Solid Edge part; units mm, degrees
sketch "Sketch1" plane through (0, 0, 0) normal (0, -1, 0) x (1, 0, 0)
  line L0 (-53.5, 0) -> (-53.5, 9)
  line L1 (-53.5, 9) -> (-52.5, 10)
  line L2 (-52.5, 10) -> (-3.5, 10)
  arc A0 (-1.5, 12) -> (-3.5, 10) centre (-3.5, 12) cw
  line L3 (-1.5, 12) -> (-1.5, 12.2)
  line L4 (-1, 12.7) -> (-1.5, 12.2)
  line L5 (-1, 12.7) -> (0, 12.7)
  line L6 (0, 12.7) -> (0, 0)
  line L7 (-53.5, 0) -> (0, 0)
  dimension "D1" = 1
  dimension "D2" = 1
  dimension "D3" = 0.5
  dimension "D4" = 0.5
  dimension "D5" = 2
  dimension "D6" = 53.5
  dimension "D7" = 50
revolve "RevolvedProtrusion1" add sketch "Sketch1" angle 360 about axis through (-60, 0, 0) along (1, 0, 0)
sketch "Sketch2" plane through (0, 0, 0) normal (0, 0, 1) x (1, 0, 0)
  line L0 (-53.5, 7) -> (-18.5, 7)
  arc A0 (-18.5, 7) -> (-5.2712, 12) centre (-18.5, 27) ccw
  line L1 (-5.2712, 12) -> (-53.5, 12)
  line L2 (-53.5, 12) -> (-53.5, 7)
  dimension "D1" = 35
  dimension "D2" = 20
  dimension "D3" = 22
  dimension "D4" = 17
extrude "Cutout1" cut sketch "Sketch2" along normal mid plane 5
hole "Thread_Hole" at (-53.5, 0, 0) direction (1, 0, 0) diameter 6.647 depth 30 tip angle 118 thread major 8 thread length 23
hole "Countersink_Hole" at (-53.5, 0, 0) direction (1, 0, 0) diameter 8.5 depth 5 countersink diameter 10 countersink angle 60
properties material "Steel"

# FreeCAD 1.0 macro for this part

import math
import FreeCAD as App
import Part
import Sketcher
Q = App.Units.Quantity

doc = App.newDocument("Part")
body = doc.addObject("PartDesign::Body", "Body")

sketch1 = body.newObject("Sketcher::SketchObject", "Sketch")
sketch1.AttachmentSupport = (doc.getObject("XZ_Plane"), [""])
sketch1.MapMode = "FlatFace"
sketch1.addGeometry([
    Part.LineSegment(App.Vector(-53.5, 9, 0), App.Vector(-53.5, 0, 0)),
    Part.LineSegment(App.Vector(-53.5, 0, 0), App.Vector(0, 0, 0)),
    Part.LineSegment(App.Vector(0, 0, 0), App.Vector(0, 12.7, 0)),
    Part.LineSegment(App.Vector(0, 12.7, 0), App.Vector(-1, 12.7, 0)),
    Part.LineSegment(App.Vector(-1, 12.7, 0), App.Vector(-1.5, 12.2, 0)),
    Part.LineSegment(App.Vector(-1.5, 12.2, 0), App.Vector(-1.5, 12, 0)),
    Part.ArcOfCircle(Part.Circle(App.Vector(-3.5, 12, 0), App.Vector(0, 0, 1), 2), math.radians(-90), math.radians(0)),
    Part.LineSegment(App.Vector(-3.5, 10, 0), App.Vector(-52.5, 10, 0)),
    Part.LineSegment(App.Vector(-52.5, 10, 0), App.Vector(-53.5, 9, 0)),
], False)
sketch1.addConstraint([
    Sketcher.Constraint("Coincident", 0, 2, 1, 1),
    Sketcher.Constraint("Coincident", 1, 2, 2, 1),
    Sketcher.Constraint("Coincident", 2, 2, 3, 1),
    Sketcher.Constraint("Coincident", 3, 2, 4, 1),
    Sketcher.Constraint("Coincident", 4, 2, 5, 1),
    Sketcher.Constraint("Tangent", 5, 2, 6, 2),
    Sketcher.Constraint("Tangent", 6, 1, 7, 1),
    Sketcher.Constraint("Coincident", 7, 2, 8, 1),
    Sketcher.Constraint("Coincident", 8, 2, 0, 1),
    Sketcher.Constraint("Vertical", 0),
    Sketcher.Constraint("Horizontal", 1),
    Sketcher.Constraint("Vertical", 2),
    Sketcher.Constraint("Horizontal", 3),
    Sketcher.Constraint("Vertical", 5),
    Sketcher.Constraint("Horizontal", 7),
    Sketcher.Constraint("Coincident", 1, 2, -1, 1),
    Sketcher.Constraint("Parallel", 4, 8),
    Sketcher.Constraint("DistanceX", 1, 1, 1, 2, Q("53.5 mm")),
    Sketcher.Constraint("Radius", 6, Q("2 mm")),
    Sketcher.Constraint("DistanceX", 6, 3, -1, 1, Q("3.5 mm")),
    Sketcher.Constraint("DistanceX", 3, 2, 3, 1, Q("1 mm")),
    Sketcher.Constraint("DistanceX", 7, 2, 7, 1, Q("49 mm")),
    Sketcher.Constraint("DistanceY", 0, 2, 0, 1, Q("9 mm")),
    Sketcher.Constraint("Angle", 4, Q("-135 deg")),
    Sketcher.Constraint("DistanceY", 2, 1, 2, 2, Q("12.7 mm")),
])
revolution = body.newObject("PartDesign::Revolution", "Revolution")
revolution.Profile = sketch1
revolution.ReferenceAxis = (sketch1, ["H_Axis"])
revolution.Angle = 360

sketch2 = body.newObject("Sketcher::SketchObject", "Sketch001")
sketch2.AttachmentSupport = (doc.getObject("XY_Plane"), [""])
sketch2.MapMode = "FlatFace"
sketch2.addGeometry([
    Part.LineSegment(App.Vector(-54, 12, 0), App.Vector(-54, 7, 0)),
    Part.LineSegment(App.Vector(-54, 7, 0), App.Vector(-18, 7, 0)),
    Part.ArcOfCircle(Part.Circle(App.Vector(-18, 27, 0), App.Vector(0, 0, 1), 20), math.radians(-90), math.radians(-49)),
    Part.LineSegment(App.Vector(-5, 12, 0), App.Vector(-54, 12, 0)),
], False)
sketch2.addConstraint([
    Sketcher.Constraint("Coincident", 0, 2, 1, 1),
    Sketcher.Constraint("Tangent", 1, 2, 2, 1),
    Sketcher.Constraint("Coincident", 2, 2, 3, 1),
    Sketcher.Constraint("Coincident", 3, 2, 0, 1),
    Sketcher.Constraint("Vertical", 0),
    Sketcher.Constraint("Horizontal", 1),
    Sketcher.Constraint("Horizontal", 3),
    Sketcher.Constraint("Radius", 2, Q("20 mm")),
    Sketcher.Constraint("DistanceX", 1, 1, 1, 2, Q("35 mm")),
    Sketcher.Constraint("DistanceY", 0, 2, 0, 1, Q("5 mm")),
    Sketcher.Constraint("DistanceY", -1, 1, 2, 3, Q("27 mm")),
    Sketcher.Constraint("DistanceX", 2, 3, -1, 1, Q("18.5 mm")),
])
pocket1 = body.newObject("PartDesign::Pocket", "Pocket")
pocket1.Profile = sketch2
pocket1.Length = 5
pocket1.Midplane = True

sketch3 = body.newObject("Sketcher::SketchObject", "Sketch002")
sketch3.AttachmentSupport = (doc.getObject("YZ_Plane"), [""])
sketch3.MapMode = "FlatFace"
sketch3.AttachmentOffset = App.Placement(App.Vector(0, 0, -53.5), App.Rotation())
sketch3.addGeometry(Part.Circle(App.Vector(0, 0, 0), App.Vector(0, 0, 1), 3.3), False)
sketch3.addConstraint([
    Sketcher.Constraint("Coincident", 0, 3, -1, 1),
    Sketcher.Constraint("Diameter", 0, Q("6.647 mm")),
])
doc.recompute()
hole = body.newObject("PartDesign::Hole", "Hole")
hole.Profile = sketch3
hole.ThreadType = "None"
hole.Diameter = 6.647
hole.DepthType = "Dimension"
hole.Depth = 30
hole.DrillPoint = "Angled"
hole.DrillPointAngle = 118
hole.Reversed = True

sketch4 = body.newObject("Sketcher::SketchObject", "Sketch003")
sketch4.AttachmentSupport = (doc.getObject("YZ_Plane"), [""])
sketch4.MapMode = "FlatFace"
sketch4.AttachmentOffset = App.Placement(App.Vector(0, 0, -53.5), App.Rotation())
sketch4.addGeometry(Part.Circle(App.Vector(0, 0, 0), App.Vector(0, 0, 1), 4.2), False)
sketch4.addConstraint([
    Sketcher.Constraint("Coincident", 0, 3, -1, 1),
    Sketcher.Constraint("Diameter", 0, Q("8.5 mm")),
])
doc.recompute()
hole2 = body.newObject("PartDesign::Hole", "Hole001")
hole2.Profile = sketch4
hole2.ThreadType = "None"
hole2.Diameter = 8.5
hole2.DepthType = "Dimension"
hole2.Depth = 5
hole2.DrillPoint = "Flat"
hole2.HoleCutType = "Countersink"
hole2.HoleCutDiameter = 10
hole2.HoleCutCountersinkAngle = 60
hole2.Reversed = True

doc.recompute()
